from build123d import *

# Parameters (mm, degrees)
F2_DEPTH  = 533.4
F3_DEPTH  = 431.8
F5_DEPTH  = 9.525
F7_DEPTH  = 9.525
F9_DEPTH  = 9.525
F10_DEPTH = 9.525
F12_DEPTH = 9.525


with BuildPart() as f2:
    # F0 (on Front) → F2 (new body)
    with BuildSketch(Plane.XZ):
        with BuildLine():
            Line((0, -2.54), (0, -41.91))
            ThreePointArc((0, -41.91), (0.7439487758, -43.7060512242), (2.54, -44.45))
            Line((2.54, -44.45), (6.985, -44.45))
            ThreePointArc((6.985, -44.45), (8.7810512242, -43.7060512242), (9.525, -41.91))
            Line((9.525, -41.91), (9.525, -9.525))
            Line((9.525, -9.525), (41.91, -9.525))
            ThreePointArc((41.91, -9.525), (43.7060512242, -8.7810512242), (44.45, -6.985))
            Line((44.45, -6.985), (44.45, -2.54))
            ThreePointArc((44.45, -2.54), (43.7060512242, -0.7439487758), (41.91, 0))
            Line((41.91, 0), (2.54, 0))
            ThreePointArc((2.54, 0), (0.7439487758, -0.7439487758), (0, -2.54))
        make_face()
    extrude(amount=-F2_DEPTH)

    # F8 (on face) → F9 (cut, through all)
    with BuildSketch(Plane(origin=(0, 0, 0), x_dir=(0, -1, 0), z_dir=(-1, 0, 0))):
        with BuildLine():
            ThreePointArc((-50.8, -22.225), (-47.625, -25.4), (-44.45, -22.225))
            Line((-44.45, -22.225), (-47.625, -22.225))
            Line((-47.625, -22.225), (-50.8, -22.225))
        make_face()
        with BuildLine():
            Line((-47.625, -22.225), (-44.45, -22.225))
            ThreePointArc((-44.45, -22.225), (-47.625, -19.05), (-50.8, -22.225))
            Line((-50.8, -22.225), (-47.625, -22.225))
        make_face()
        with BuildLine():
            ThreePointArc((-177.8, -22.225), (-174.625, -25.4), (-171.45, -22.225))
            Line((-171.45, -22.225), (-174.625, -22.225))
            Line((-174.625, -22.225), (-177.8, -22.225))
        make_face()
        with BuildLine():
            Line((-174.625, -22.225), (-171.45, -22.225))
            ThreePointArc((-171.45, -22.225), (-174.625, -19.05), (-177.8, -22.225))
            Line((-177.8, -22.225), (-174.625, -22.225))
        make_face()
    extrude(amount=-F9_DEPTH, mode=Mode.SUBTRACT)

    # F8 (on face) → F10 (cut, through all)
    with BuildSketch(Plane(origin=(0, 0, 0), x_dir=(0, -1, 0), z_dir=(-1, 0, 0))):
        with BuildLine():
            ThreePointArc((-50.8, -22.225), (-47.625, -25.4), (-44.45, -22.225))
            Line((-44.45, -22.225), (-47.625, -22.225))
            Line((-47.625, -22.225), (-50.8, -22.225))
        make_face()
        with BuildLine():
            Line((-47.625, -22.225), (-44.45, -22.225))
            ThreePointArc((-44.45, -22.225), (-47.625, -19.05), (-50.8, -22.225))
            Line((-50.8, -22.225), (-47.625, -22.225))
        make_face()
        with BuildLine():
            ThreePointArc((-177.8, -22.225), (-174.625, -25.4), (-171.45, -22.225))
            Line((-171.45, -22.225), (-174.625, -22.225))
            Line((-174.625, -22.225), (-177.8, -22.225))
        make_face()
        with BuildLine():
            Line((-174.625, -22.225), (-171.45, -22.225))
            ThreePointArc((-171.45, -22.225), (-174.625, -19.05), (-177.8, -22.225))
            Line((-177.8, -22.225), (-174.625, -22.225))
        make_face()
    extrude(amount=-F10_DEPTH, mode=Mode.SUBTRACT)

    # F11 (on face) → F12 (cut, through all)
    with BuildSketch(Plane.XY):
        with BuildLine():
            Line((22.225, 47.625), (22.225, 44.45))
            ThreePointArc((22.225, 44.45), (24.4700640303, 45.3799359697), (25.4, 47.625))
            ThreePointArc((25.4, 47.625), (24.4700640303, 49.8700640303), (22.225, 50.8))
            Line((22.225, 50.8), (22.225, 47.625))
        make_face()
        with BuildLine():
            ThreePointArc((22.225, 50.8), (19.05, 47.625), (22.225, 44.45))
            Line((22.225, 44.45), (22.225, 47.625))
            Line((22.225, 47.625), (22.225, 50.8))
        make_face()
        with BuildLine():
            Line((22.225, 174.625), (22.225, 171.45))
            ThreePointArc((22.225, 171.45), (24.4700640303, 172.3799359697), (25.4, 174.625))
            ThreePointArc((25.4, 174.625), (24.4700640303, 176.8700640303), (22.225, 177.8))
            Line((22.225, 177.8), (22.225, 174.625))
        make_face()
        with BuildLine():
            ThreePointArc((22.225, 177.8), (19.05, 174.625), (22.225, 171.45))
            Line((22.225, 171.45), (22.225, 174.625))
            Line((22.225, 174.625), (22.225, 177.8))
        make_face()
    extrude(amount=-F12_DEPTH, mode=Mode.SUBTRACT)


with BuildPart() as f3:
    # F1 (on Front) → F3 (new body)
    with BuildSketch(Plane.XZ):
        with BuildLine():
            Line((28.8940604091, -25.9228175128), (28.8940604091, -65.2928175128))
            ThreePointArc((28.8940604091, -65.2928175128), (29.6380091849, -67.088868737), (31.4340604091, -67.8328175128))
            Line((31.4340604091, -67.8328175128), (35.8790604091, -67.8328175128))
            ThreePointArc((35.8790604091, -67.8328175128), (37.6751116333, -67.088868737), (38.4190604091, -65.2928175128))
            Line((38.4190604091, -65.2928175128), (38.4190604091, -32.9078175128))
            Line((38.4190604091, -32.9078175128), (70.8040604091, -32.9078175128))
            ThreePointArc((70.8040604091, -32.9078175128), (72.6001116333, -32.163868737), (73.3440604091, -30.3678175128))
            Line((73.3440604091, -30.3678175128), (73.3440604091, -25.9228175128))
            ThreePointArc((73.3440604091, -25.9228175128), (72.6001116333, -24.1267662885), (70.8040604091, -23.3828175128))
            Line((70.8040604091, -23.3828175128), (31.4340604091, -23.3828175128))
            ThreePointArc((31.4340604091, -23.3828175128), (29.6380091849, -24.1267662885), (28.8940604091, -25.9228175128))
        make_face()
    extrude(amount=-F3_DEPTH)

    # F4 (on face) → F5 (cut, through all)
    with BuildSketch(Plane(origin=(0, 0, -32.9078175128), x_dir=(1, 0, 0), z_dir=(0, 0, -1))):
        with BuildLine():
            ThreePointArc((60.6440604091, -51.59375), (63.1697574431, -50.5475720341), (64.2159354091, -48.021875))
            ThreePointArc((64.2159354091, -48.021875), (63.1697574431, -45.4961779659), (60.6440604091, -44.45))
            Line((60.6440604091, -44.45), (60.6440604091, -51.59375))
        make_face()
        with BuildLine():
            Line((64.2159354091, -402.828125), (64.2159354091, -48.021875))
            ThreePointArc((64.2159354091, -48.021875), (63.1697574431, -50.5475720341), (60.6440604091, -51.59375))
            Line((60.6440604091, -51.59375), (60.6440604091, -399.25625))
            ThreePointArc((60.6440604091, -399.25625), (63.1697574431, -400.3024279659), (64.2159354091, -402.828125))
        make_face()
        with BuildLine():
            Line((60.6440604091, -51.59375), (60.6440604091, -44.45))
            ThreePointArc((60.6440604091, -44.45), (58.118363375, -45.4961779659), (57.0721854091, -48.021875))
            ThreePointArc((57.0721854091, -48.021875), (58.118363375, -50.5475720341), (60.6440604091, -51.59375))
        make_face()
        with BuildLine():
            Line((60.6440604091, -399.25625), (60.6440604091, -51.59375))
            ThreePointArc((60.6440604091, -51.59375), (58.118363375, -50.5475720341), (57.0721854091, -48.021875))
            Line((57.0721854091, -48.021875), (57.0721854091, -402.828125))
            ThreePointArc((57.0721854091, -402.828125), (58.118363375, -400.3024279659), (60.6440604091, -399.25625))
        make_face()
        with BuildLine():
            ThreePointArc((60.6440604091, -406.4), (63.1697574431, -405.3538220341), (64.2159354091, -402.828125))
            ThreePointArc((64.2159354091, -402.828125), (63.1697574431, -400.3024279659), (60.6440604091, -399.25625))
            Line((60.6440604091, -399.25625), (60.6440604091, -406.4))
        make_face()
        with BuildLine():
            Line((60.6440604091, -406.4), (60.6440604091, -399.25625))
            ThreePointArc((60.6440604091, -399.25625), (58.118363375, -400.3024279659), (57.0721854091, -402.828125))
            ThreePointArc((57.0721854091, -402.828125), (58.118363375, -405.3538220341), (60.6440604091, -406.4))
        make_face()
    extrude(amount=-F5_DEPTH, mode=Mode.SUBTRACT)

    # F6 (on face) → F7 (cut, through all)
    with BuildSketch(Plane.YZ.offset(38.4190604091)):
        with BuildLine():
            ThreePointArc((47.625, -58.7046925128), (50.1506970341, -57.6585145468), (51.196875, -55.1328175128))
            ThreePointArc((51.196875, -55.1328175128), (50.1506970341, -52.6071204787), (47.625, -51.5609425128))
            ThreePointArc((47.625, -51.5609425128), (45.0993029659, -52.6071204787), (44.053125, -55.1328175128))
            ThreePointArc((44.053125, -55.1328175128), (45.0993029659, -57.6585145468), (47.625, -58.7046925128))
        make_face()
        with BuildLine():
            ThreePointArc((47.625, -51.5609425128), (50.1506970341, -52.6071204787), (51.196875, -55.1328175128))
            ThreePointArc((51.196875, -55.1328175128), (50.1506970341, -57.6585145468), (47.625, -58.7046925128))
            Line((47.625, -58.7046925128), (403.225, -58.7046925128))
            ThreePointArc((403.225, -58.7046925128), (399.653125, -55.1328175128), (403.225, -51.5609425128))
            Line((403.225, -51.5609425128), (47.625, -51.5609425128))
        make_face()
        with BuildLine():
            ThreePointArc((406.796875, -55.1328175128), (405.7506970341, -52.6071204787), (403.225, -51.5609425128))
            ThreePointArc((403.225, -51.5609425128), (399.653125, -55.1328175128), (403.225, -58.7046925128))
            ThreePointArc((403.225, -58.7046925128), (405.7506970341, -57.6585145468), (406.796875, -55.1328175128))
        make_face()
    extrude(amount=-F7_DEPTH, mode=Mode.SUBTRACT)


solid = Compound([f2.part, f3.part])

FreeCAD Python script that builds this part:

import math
import FreeCAD as App
import Part
import Sketcher
from FreeCAD import Vector
Q = App.Units.Quantity

doc = App.newDocument("Part")
body = doc.addObject("PartDesign::Body", "Body")

sketch1 = body.newObject("Sketcher::SketchObject", "Sketch")
sketch1.AttachmentSupport = (doc.getObject("XZ_Plane"), [""])
sketch1.MapMode = "FlatFace"
sketch1.addGeometry([
    Part.LineSegment(Vector(0, -2.5, 0), Vector(0, -41.9, 0)),
    Part.ArcOfCircle(Part.Circle(Vector(2.5, -41.9, 0), Vector(0, 0, 1), 2.5), math.radians(180), math.radians(270)),
    Part.LineSegment(Vector(2.5, -44.5, 0), Vector(7, -44.5, 0)),
    Part.ArcOfCircle(Part.Circle(Vector(7, -41.9, 0), Vector(0, 0, 1), 2.5), math.radians(-90), math.radians(0)),
    Part.LineSegment(Vector(9.5, -41.9, 0), Vector(9.5, -9.5, 0)),
    Part.LineSegment(Vector(9.5, -9.5, 0), Vector(41.9, -9.5, 0)),
    Part.ArcOfCircle(Part.Circle(Vector(41.9, -7, 0), Vector(0, 0, 1), 2.5), math.radians(-90), math.radians(0)),
    Part.LineSegment(Vector(44.5, -7, 0), Vector(44.5, -2.5, 0)),
    Part.ArcOfCircle(Part.Circle(Vector(41.9, -2.5, 0), Vector(0, 0, 1), 2.5), math.radians(0), math.radians(90)),
    Part.LineSegment(Vector(41.9, 0, 0), Vector(2.5, 0, 0)),
    Part.ArcOfCircle(Part.Circle(Vector(2.5, -2.5, 0), Vector(0, 0, 1), 2.5), math.radians(90), math.radians(180)),
], False)
sketch1.addConstraint([
    Sketcher.Constraint("Tangent", 0, 2, 1, 1),
    Sketcher.Constraint("Tangent", 1, 2, 2, 1),
    Sketcher.Constraint("Tangent", 2, 2, 3, 1),
    Sketcher.Constraint("Tangent", 3, 2, 4, 1),
    Sketcher.Constraint("Coincident", 4, 2, 5, 1),
    Sketcher.Constraint("Tangent", 5, 2, 6, 1),
    Sketcher.Constraint("Tangent", 6, 2, 7, 1),
    Sketcher.Constraint("Tangent", 7, 2, 8, 1),
    Sketcher.Constraint("Tangent", 8, 2, 9, 1),
    Sketcher.Constraint("Tangent", 9, 2, 10, 1),
    Sketcher.Constraint("Tangent", 10, 2, 0, 1),
    Sketcher.Constraint("Vertical", 0),
    Sketcher.Constraint("Horizontal", 2),
    Sketcher.Constraint("Vertical", 4),
    Sketcher.Constraint("Horizontal", 5),
    Sketcher.Constraint("Vertical", 7),
    Sketcher.Constraint("Horizontal", 9),
    Sketcher.Constraint("Equal", 1, 3),
    Sketcher.Constraint("Equal", 3, 6),
    Sketcher.Constraint("Equal", 6, 8),
    Sketcher.Constraint("Equal", 8, 10),
    Sketcher.Constraint("PointOnObject", 0, 2, -2),
    Sketcher.Constraint("PointOnObject", 8, 2, -1),
    Sketcher.Constraint("Equal", 9, 0),
    Sketcher.Constraint("Equal", 5, 4),
    Sketcher.Constraint("Radius", 1, Q("0.1 in")),
    Sketcher.Constraint("DistanceX", 9, 2, 9, 1, Q("1.55 in")),
    Sketcher.Constraint("DistanceX", 2, 1, 2, 2, Q("0.175 in")),
])
pad1 = body.newObject("PartDesign::Pad", "Pad")
pad1.Profile = sketch1
pad1.Length = Q("21 in")
pad1.Reversed = True

sketch2 = body.newObject("Sketcher::SketchObject", "Sketch001")
sketch2.AttachmentSupport = (doc.getObject("YZ_Plane"), [""])
sketch2.MapMode = "FlatFace"
sketch2.addGeometry([
    Part.Circle(Vector(47.6, -22.2, 0), Vector(0, 0, 1), 3.2),
    Part.Circle(Vector(174.6, -22.2, 0), Vector(0, 0, 1), 3.2),
], False)
sketch2.addConstraint([
    Sketcher.Constraint("Equal", 0, 1),
    Sketcher.Constraint("Horizontal", 0, 3, 1, 3),
    Sketcher.Constraint("Diameter", 0, Q("0.25 in")),
    Sketcher.Constraint("DistanceX", 0, 3, 1, 3, Q("5 in")),
    Sketcher.Constraint("DistanceX", -1, 1, 0, 3, Q("1.875 in")),
    Sketcher.Constraint("DistanceY", 0, 3, -1, 1, Q("0.875 in")),
])
pocket1 = body.newObject("PartDesign::Pocket", "Pocket")
pocket1.Profile = sketch2
pocket1.Type = "ThroughAll"
pocket1.Reversed = True

sketch3 = body.newObject("Sketcher::SketchObject", "Sketch002")
sketch3.AttachmentSupport = (doc.getObject("YZ_Plane"), [""])
sketch3.MapMode = "FlatFace"
sketch3.addGeometry([
    Part.Circle(Vector(47.6, -22.2, 0), Vector(0, 0, 1), 3.2),
    Part.Circle(Vector(174.6, -22.2, 0), Vector(0, 0, 1), 3.2),
], False)
sketch3.addConstraint([
    Sketcher.Constraint("Equal", 0, 1),
    Sketcher.Constraint("Horizontal", 0, 3, 1, 3),
    Sketcher.Constraint("Diameter", 0, Q("0.25 in")),
    Sketcher.Constraint("DistanceX", 0, 3, 1, 3, Q("5 in")),
    Sketcher.Constraint("DistanceX", -1, 1, 0, 3, Q("1.875 in")),
    Sketcher.Constraint("DistanceY", 0, 3, -1, 1, Q("0.875 in")),
])
pocket2 = body.newObject("PartDesign::Pocket", "Pocket001")
pocket2.Profile = sketch3
pocket2.Type = "ThroughAll"
pocket2.Reversed = True

sketch4 = body.newObject("Sketcher::SketchObject", "Sketch003")
sketch4.AttachmentSupport = (doc.getObject("XY_Plane"), [""])
sketch4.MapMode = "FlatFace"
sketch4.addGeometry([
    Part.ArcOfCircle(Part.Circle(Vector(22.2, 47.6, 0), Vector(0, 0, 1), 3.2), math.radians(-90), math.radians(0)),
    Part.ArcOfCircle(Part.Circle(Vector(22.2, 47.6, 0), Vector(0, 0, 1), 3.2), math.radians(0), math.radians(90)),
    Part.ArcOfCircle(Part.Circle(Vector(22.2, 47.6, 0), Vector(0, 0, 1), 3.2), math.radians(90), math.radians(270)),
    Part.ArcOfCircle(Part.Circle(Vector(22.2, 174.6, 0), Vector(0, 0, 1), 3.2), math.radians(-90), math.radians(0)),
    Part.ArcOfCircle(Part.Circle(Vector(22.2, 174.6, 0), Vector(0, 0, 1), 3.2), math.radians(0), math.radians(90)),
    Part.ArcOfCircle(Part.Circle(Vector(22.2, 174.6, 0), Vector(0, 0, 1), 3.2), math.radians(90), math.radians(270)),
], False)
sketch4.addConstraint([
    Sketcher.Constraint("Tangent", 0, 2, 1, 1),
    Sketcher.Constraint("Tangent", 1, 2, 2, 1),
    Sketcher.Constraint("Tangent", 2, 2, 0, 1),
    Sketcher.Constraint("Tangent", 3, 2, 4, 1),
    Sketcher.Constraint("Tangent", 4, 2, 5, 1),
    Sketcher.Constraint("Tangent", 5, 2, 3, 1),
    Sketcher.Constraint("Equal", 2, 3),
    Sketcher.Constraint("Horizontal", 2, 3, 0, 2),
    Sketcher.Constraint("Horizontal", 5, 3, 3, 2),
    Sketcher.Constraint("Vertical", 2, 3, 3, 3),
    Sketcher.Constraint("Vertical", 5, 3, 1, 2),
    Sketcher.Constraint("Vertical", 1, 2, 2, 2),
    Sketcher.Constraint("Vertical", 2, 2, 4, 2),
    Sketcher.Constraint("Vertical", 4, 2, 5, 2),
    Sketcher.Constraint("DistanceX", -1, 1, 0, 2, Q("1 in")),
    Sketcher.Constraint("DistanceY", -1, 1, 1, 2, Q("2 in")),
    Sketcher.Constraint("DistanceY", -1, 1, 4, 2, Q("7 in")),
    Sketcher.Constraint("Radius", 0, Q("0.125 in")),
])
pocket3 = body.newObject("PartDesign::Pocket", "Pocket002")
pocket3.Profile = sketch4
pocket3.Type = "ThroughAll"
body2 = doc.addObject("PartDesign::Body", "Body001")

sketch5 = body2.newObject("Sketcher::SketchObject", "Sketch004")
sketch5.AttachmentSupport = (doc.getObject("XZ_Plane001"), [""])
sketch5.MapMode = "FlatFace"
sketch5.addGeometry([
    Part.LineSegment(Vector(28.9, -25.9, 0), Vector(28.9, -65.3, 0)),
    Part.ArcOfCircle(Part.Circle(Vector(31.4, -65.3, 0), Vector(0, 0, 1), 2.5), math.radians(180), math.radians(270)),
    Part.LineSegment(Vector(31.4, -67.8, 0), Vector(35.9, -67.8, 0)),
    Part.ArcOfCircle(Part.Circle(Vector(35.9, -65.3, 0), Vector(0, 0, 1), 2.5), math.radians(-90), math.radians(0)),
    Part.LineSegment(Vector(38.4, -65.3, 0), Vector(38.4, -32.9, 0)),
    Part.LineSegment(Vector(38.4, -32.9, 0), Vector(70.8, -32.9, 0)),
    Part.ArcOfCircle(Part.Circle(Vector(70.8, -30.4, 0), Vector(0, 0, 1), 2.5), math.radians(-90), math.radians(0)),
    Part.LineSegment(Vector(73.3, -30.4, 0), Vector(73.3, -25.9, 0)),
    Part.ArcOfCircle(Part.Circle(Vector(70.8, -25.9, 0), Vector(0, 0, 1), 2.5), math.radians(0), math.radians(90)),
    Part.LineSegment(Vector(70.8, -23.4, 0), Vector(31.4, -23.4, 0)),
    Part.ArcOfCircle(Part.Circle(Vector(31.4, -25.9, 0), Vector(0, 0, 1), 2.5), math.radians(90), math.radians(180)),
], False)
sketch5.addConstraint([
    Sketcher.Constraint("Tangent", 0, 2, 1, 1),
    Sketcher.Constraint("Tangent", 1, 2, 2, 1),
    Sketcher.Constraint("Tangent", 2, 2, 3, 1),
    Sketcher.Constraint("Tangent", 3, 2, 4, 1),
    Sketcher.Constraint("Coincident", 4, 2, 5, 1),
    Sketcher.Constraint("Tangent", 5, 2, 6, 1),
    Sketcher.Constraint("Tangent", 6, 2, 7, 1),
    Sketcher.Constraint("Tangent", 7, 2, 8, 1),
    Sketcher.Constraint("Tangent", 8, 2, 9, 1),
    Sketcher.Constraint("Tangent", 9, 2, 10, 1),
    Sketcher.Constraint("Tangent", 10, 2, 0, 1),
    Sketcher.Constraint("Vertical", 0),
    Sketcher.Constraint("Horizontal", 2),
    Sketcher.Constraint("Vertical", 4),
    Sketcher.Constraint("Horizontal", 5),
    Sketcher.Constraint("Vertical", 7),
    Sketcher.Constraint("Horizontal", 9),
    Sketcher.Constraint("Equal", 1, 3),
    Sketcher.Constraint("Equal", 3, 6),
    Sketcher.Constraint("Equal", 6, 8),
    Sketcher.Constraint("Equal", 8, 10),
    Sketcher.Constraint("Equal", 9, 0),
    Sketcher.Constraint("Equal", 5, 4),
    Sketcher.Constraint("Radius", 1, Q("0.1 in")),
    Sketcher.Constraint("DistanceX", 9, 2, 9, 1, Q("1.55 in")),
    Sketcher.Constraint("DistanceX", 2, 1, 2, 2, Q("0.175 in")),
    Sketcher.Constraint("DistanceX", -1, 1, 1, 3, Q("31.43406 mm")),
    Sketcher.Constraint("DistanceY", 1, 3, -1, 1, Q("65.292818 mm")),
])
pad2 = body2.newObject("PartDesign::Pad", "Pad001")
pad2.Profile = sketch5
pad2.Length = Q("17 in")
pad2.Reversed = True

sketch6 = body2.newObject("Sketcher::SketchObject", "Sketch005")
sketch6.AttachmentSupport = (doc.getObject("XY_Plane001"), [""])
sketch6.MapMode = "FlatFace"
sketch6.AttachmentOffset = App.Placement(Vector(0, 0, -32.907818), App.Rotation())
sketch6.addGeometry([
    Part.ArcOfCircle(Part.Circle(Vector(60.6, 48, 0), Vector(0, 0, 1), 3.6), math.radians(-90), math.radians(0)),
    Part.ArcOfCircle(Part.Circle(Vector(60.6, 48, 0), Vector(0, 0, 1), 3.6), math.radians(180), math.radians(270)),
    Part.LineSegment(Vector(57.1, 48, 0), Vector(57.1, 402.8, 0)),
    Part.ArcOfCircle(Part.Circle(Vector(60.6, 402.8, 0), Vector(0, 0, 1), 3.6), math.radians(90), math.radians(180)),
    Part.ArcOfCircle(Part.Circle(Vector(60.6, 402.8, 0), Vector(0, 0, 1), 3.6), math.radians(0), math.radians(90)),
    Part.LineSegment(Vector(64.2, 402.8, 0), Vector(64.2, 48, 0)),
], False)
sketch6.addConstraint([
    Sketcher.Constraint("Tangent", 0, 1, 1, 2),
    Sketcher.Constraint("Tangent", 1, 1, 2, 1),
    Sketcher.Constraint("Tangent", 2, 2, 3, 2),
    Sketcher.Constraint("Tangent", 3, 1, 4, 2),
    Sketcher.Constraint("Tangent", 4, 1, 5, 1),
    Sketcher.Constraint("Tangent", 5, 2, 0, 2),
    Sketcher.Constraint("Vertical", 2),
    Sketcher.Constraint("Vertical", 5),
    Sketcher.Constraint("Equal", 0, 1),
    Sketcher.Constraint("Equal", 1, 3),
    Sketcher.Constraint("Vertical", 4, 3, 0, 1),
    Sketcher.Constraint("Vertical", 0, 1, 3, 1),
    Sketcher.Constraint("DistanceY", -1, 1, 3, 1, Q("16 in")),
    Sketcher.Constraint("Radius", 0, Q("0.140625 in")),
    Sketcher.Constraint("DistanceY", 2, 1, 2, 2, Q("13.96875 in")),
    Sketcher.Constraint("DistanceX", -1, 1, 0, 3, Q("60.64406 mm")),
])
pocket4 = body2.newObject("PartDesign::Pocket", "Pocket003")
pocket4.Profile = sketch6
pocket4.Type = "ThroughAll"
pocket4.Reversed = True

sketch7 = body2.newObject("Sketcher::SketchObject", "Sketch006")
sketch7.AttachmentSupport = (doc.getObject("YZ_Plane001"), [""])
sketch7.MapMode = "FlatFace"
sketch7.AttachmentOffset = App.Placement(Vector(0, 0, 38.41906), App.Rotation())
sketch7.addGeometry([
    Part.ArcOfCircle(Part.Circle(Vector(47.6, -55.1, 0), Vector(0, 0, 1), 3.6), math.radians(90), math.radians(180)),
    Part.ArcOfCircle(Part.Circle(Vector(47.6, -55.1, 0), Vector(0, 0, 1), 3.6), math.radians(180), math.radians(270)),
    Part.LineSegment(Vector(47.6, -58.7, 0), Vector(403.2, -58.7, 0)),
    Part.ArcOfCircle(Part.Circle(Vector(403.2, -55.1, 0), Vector(0, 0, 1), 3.6), math.radians(-90), math.radians(0)),
    Part.ArcOfCircle(Part.Circle(Vector(403.2, -55.1, 0), Vector(0, 0, 1), 3.6), math.radians(0), math.radians(90)),
    Part.LineSegment(Vector(403.2, -51.6, 0), Vector(47.6, -51.6, 0)),
], False)
sketch7.addConstraint([
    Sketcher.Constraint("Tangent", 0, 2, 1, 1),
    Sketcher.Constraint("Tangent", 1, 2, 2, 1),
    Sketcher.Constraint("Tangent", 2, 2, 3, 1),
    Sketcher.Constraint("Tangent", 3, 2, 4, 1),
    Sketcher.Constraint("Tangent", 4, 2, 5, 1),
    Sketcher.Constraint("Tangent", 5, 2, 0, 1),
    Sketcher.Constraint("Horizontal", 2),
    Sketcher.Constraint("Horizontal", 5),
    Sketcher.Constraint("Equal", 0, 1),
    Sketcher.Constraint("Equal", 1, 3),
    Sketcher.Constraint("Horizontal", 4, 3, 0, 2),
    Sketcher.Constraint("Horizontal", 0, 2, 3, 2),
    Sketcher.Constraint("DistanceX", 2, 1, 2, 2, Q("14 in")),
    Sketcher.Constraint("Radius", 0, Q("0.140625 in")),
    Sketcher.Constraint("DistanceX", -1, 1, 0, 3, Q("1.875 in")),
    Sketcher.Constraint("DistanceY", 0, 3, -1, 1, Q("55.132818 mm")),
])
pocket5 = body2.newObject("PartDesign::Pocket", "Pocket004")
pocket5.Profile = sketch7
pocket5.Type = "ThroughAll"

doc.recompute()
